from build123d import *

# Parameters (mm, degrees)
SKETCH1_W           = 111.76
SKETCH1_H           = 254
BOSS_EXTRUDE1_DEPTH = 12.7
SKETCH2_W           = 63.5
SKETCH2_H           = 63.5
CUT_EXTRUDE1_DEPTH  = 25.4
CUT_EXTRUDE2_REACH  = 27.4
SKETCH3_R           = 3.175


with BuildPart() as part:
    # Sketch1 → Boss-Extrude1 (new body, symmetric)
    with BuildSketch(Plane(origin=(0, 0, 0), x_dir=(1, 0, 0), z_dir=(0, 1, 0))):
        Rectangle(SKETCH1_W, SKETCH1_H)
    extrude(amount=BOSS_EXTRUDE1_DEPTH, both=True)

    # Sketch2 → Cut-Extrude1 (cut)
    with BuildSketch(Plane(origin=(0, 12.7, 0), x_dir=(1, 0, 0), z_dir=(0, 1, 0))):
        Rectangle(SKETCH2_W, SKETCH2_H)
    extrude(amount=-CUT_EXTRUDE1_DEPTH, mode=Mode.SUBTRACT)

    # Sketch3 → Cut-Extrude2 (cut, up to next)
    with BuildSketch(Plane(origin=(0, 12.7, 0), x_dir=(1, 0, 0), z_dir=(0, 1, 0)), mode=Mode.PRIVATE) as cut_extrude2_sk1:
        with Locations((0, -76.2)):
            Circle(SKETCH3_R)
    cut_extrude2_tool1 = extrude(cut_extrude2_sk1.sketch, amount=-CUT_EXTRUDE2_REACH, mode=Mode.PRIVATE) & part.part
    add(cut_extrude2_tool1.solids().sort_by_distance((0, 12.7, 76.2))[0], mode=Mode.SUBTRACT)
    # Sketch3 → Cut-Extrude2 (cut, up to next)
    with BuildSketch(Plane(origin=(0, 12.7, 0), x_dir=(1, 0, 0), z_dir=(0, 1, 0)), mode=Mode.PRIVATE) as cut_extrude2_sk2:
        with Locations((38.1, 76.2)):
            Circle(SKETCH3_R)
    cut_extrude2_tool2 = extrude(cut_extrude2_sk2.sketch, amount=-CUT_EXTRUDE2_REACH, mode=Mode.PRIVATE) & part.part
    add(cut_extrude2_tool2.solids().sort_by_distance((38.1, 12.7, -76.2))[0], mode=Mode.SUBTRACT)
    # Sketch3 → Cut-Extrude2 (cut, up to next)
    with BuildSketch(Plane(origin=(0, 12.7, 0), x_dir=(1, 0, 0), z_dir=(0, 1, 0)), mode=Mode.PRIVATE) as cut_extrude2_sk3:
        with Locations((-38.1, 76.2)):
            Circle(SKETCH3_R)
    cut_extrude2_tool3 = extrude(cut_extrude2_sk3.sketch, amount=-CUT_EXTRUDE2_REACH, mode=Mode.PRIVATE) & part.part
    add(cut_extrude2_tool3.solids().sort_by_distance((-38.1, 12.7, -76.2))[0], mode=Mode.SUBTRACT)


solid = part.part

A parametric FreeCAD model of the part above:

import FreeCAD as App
import Part
import Sketcher

V = App.Vector
Q = App.Units.Quantity

doc = App.newDocument("Part")
body = doc.addObject("PartDesign::Body", "Body")

# Sketch on XZ plane
sketch1 = doc.addObject("Sketcher::SketchObject", "Sketch")
body.addObject(sketch1)
sketch1.AttachmentSupport = (doc.XZ_Plane, [""])
sketch1.MapMode = "FlatFace"
sketch1.addGeometry([
    Part.LineSegment(V(-56, -127, 0), V(-56, 127, 0)),
    Part.LineSegment(V(-56, 127, 0), V(56, 127, 0)),
    Part.LineSegment(V(56, 127, 0), V(56, -127, 0)),
    Part.LineSegment(V(56, -127, 0), V(-56, -127, 0)),
], False)
sketch1.addConstraint([
    Sketcher.Constraint("Coincident", 0, 2, 1, 1),
    Sketcher.Constraint("Coincident", 1, 2, 2, 1),
    Sketcher.Constraint("Coincident", 2, 2, 3, 1),
    Sketcher.Constraint("Coincident", 3, 2, 0, 1),
    Sketcher.Constraint("Vertical", 0),
    Sketcher.Constraint("Horizontal", 1),
    Sketcher.Constraint("Vertical", 2),
    Sketcher.Constraint("Horizontal", 3),
    Sketcher.Constraint("Symmetric", 0, 2, 2, 2, -1, 1),
    Sketcher.Constraint("DistanceY", 0, 1, 0, 2, Q("10 in")),
    Sketcher.Constraint("DistanceX", 1, 1, 1, 2, Q("4.4 in")),
])
pad1 = doc.addObject("PartDesign::Pad", "Pad")
body.addObject(pad1)
pad1.Profile = sketch1
pad1.Length = Q("1 in")
pad1.Midplane = True

# Sketch on XZ plane
sketch2 = doc.addObject("Sketcher::SketchObject", "Sketch001")
body.addObject(sketch2)
sketch2.AttachmentSupport = (doc.XZ_Plane, [""])
sketch2.MapMode = "FlatFace"
sketch2.AttachmentOffset = App.Placement(V(0, 0, -0.5 * 25.4), App.Rotation())
sketch2.addGeometry([
    Part.LineSegment(V(-32, -32, 0), V(-32, 32, 0)),
    Part.LineSegment(V(-32, 32, 0), V(32, 32, 0)),
    Part.LineSegment(V(32, 32, 0), V(32, -32, 0)),
    Part.LineSegment(V(32, -32, 0), V(-32, -32, 0)),
], False)
sketch2.addConstraint([
    Sketcher.Constraint("Coincident", 0, 2, 1, 1),
    Sketcher.Constraint("Coincident", 1, 2, 2, 1),
    Sketcher.Constraint("Coincident", 2, 2, 3, 1),
    Sketcher.Constraint("Coincident", 3, 2, 0, 1),
    Sketcher.Constraint("Vertical", 0),
    Sketcher.Constraint("Horizontal", 1),
    Sketcher.Constraint("Vertical", 2),
    Sketcher.Constraint("Horizontal", 3),
    Sketcher.Constraint("Symmetric", 0, 2, 2, 2, -1, 1),
    Sketcher.Constraint("Equal", 3, 0),
    Sketcher.Constraint("DistanceX", 1, 1, 1, 2, Q("2.5 in")),
])
pocket1 = doc.addObject("PartDesign::Pocket", "Pocket")
body.addObject(pocket1)
pocket1.Profile = sketch2
pocket1.Length = Q("1 in")
pocket1.Reversed = True

# Sketch on XZ plane
sketch3 = doc.addObject("Sketcher::SketchObject", "Sketch002")
body.addObject(sketch3)
sketch3.AttachmentSupport = (doc.XZ_Plane, [""])
sketch3.MapMode = "FlatFace"
sketch3.AttachmentOffset = App.Placement(V(0, 0, -0.5 * 25.4), App.Rotation())
sketch3.addGeometry(Part.Circle(V(0, 76.2, 0), V(0, 0, 1), 3.2), False)
sketch3.addConstraint([
    Sketcher.Constraint("PointOnObject", 0, 3, -2),
    Sketcher.Constraint("Diameter", 0, Q("0.25 in")),
    Sketcher.Constraint("DistanceY", -1, 1, 0, 3, Q("3 in")),
])
pocket2 = doc.addObject("PartDesign::Pocket", "Pocket001")
body.addObject(pocket2)
pocket2.Profile = sketch3
pocket2.Type = "UpToFirst"
pocket2.Reversed = True

# Sketch on XZ plane
sketch4 = doc.addObject("Sketcher::SketchObject", "Sketch003")
body.addObject(sketch4)
sketch4.AttachmentSupport = (doc.XZ_Plane, [""])
sketch4.MapMode = "FlatFace"
sketch4.AttachmentOffset = App.Placement(V(0, 0, -0.5 * 25.4), App.Rotation())
sketch4.addGeometry(Part.Circle(V(38.1, -76.2, 0), V(0, 0, 1), 3.2), False)
sketch4.addConstraint([
    Sketcher.Constraint("Diameter", 0, Q("0.25 in")),
    Sketcher.Constraint("DistanceY", 0, 3, -1, 1, Q("3 in")),
    Sketcher.Constraint("DistanceX", -1, 1, 0, 3, Q("1.5 in")),
])
pocket3 = doc.addObject("PartDesign::Pocket", "Pocket002")
body.addObject(pocket3)
pocket3.Profile = sketch4
pocket3.Type = "UpToFirst"
pocket3.Reversed = True

# Sketch on XZ plane
sketch5 = doc.addObject("Sketcher::SketchObject", "Sketch004")
body.addObject(sketch5)
sketch5.AttachmentSupport = (doc.XZ_Plane, [""])
sketch5.MapMode = "FlatFace"
sketch5.AttachmentOffset = App.Placement(V(0, 0, -0.5 * 25.4), App.Rotation())
sketch5.addGeometry(Part.Circle(V(-38.1, -76.2, 0), V(0, 0, 1), 3.2), False)
sketch5.addConstraint([
    Sketcher.Constraint("Diameter", 0, Q("0.25 in")),
    Sketcher.Constraint("DistanceY", 0, 3, -1, 1, Q("3 in")),
    Sketcher.Constraint("DistanceX", 0, 3, -1, 1, Q("1.5 in")),
])
pocket4 = doc.addObject("PartDesign::Pocket", "Pocket003")
body.addObject(pocket4)
pocket4.Profile = sketch5
pocket4.Type = "UpToFirst"
pocket4.Reversed = True

doc.recompute()
